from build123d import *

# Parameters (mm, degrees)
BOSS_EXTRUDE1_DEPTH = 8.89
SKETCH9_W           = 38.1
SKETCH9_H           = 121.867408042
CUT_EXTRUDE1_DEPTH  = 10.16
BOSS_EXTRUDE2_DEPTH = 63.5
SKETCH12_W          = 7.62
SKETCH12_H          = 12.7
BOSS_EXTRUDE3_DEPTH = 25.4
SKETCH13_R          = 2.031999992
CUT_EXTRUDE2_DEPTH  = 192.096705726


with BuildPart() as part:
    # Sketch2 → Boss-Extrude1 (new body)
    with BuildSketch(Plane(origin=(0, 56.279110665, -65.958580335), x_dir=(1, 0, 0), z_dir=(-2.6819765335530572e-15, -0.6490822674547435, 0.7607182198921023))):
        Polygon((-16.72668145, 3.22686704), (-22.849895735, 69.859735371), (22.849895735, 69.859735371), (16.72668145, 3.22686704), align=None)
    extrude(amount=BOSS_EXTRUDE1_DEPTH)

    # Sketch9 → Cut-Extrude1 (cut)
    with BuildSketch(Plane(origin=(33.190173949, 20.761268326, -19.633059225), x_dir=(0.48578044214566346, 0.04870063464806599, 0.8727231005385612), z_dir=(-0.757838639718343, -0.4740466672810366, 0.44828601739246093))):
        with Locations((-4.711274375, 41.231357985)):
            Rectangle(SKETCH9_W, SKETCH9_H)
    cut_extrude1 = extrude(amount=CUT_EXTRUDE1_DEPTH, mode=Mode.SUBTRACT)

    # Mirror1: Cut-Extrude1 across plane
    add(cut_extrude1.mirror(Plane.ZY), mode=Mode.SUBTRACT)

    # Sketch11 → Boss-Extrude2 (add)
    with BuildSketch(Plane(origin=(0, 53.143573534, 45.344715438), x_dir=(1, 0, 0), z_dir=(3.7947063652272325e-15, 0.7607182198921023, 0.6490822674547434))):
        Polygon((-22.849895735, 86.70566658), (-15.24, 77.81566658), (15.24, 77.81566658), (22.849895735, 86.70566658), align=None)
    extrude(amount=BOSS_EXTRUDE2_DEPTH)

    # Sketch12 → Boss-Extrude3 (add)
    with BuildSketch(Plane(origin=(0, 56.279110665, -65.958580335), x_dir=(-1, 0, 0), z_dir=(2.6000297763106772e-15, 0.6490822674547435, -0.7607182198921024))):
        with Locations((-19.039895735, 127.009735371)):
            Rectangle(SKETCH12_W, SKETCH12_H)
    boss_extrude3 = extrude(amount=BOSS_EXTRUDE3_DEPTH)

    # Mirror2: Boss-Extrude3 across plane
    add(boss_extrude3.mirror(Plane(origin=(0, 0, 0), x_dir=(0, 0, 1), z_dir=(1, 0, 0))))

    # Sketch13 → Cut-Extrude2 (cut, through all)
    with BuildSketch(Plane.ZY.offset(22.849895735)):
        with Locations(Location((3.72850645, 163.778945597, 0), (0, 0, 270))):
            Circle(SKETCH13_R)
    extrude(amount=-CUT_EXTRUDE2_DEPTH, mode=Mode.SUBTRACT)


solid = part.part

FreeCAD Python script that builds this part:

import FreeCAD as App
import Part
import Sketcher
Q = App.Units.Quantity

doc = App.newDocument("Part")
body = doc.addObject("PartDesign::Body", "Body")

sketch1 = body.newObject("Sketcher::SketchObject", "Sketch")
sketch1.Placement = App.Placement(App.Vector(0, 56.279111, -65.95858), App.Rotation(App.Vector(1, 0, 0), App.Vector(0, 0.76071822, 0.649082267), App.Vector(0, -0.649082267, 0.76071822), "ZXY"))
sketch1.addGeometry(Part.LineSegment(App.Vector(-22.849896, 69.859735, 0), App.Vector(-16.726681, 3.226867, 0)), False)
sketch1.addGeometry(Part.LineSegment(App.Vector(-16.726681, 3.226867, 0), App.Vector(16.726681, 3.226867, 0)), False)
sketch1.addGeometry(Part.LineSegment(App.Vector(16.726681, 3.226867, 0), App.Vector(22.849896, 69.859735, 0)), False)
sketch1.addGeometry(Part.LineSegment(App.Vector(22.849896, 69.859735, 0), App.Vector(-22.849896, 69.859735, 0)), False)
sketch1.addConstraint(Sketcher.Constraint("Coincident", 0, 2, 1, 1))
sketch1.addConstraint(Sketcher.Constraint("Coincident", 1, 2, 2, 1))
sketch1.addConstraint(Sketcher.Constraint("Coincident", 2, 2, 3, 1))
sketch1.addConstraint(Sketcher.Constraint("Coincident", 3, 2, 0, 1))
sketch1.addConstraint(Sketcher.Constraint("Horizontal", 1))
sketch1.addConstraint(Sketcher.Constraint("Horizontal", 3))
sketch1.addConstraint(Sketcher.Constraint("Equal", 0, 2))
sketch1.addConstraint(Sketcher.Constraint("DistanceX", 3, 2, 3, 1, 45.699791))
sketch1.addConstraint(Sketcher.Constraint("DistanceX", 1, 1, 1, 2, 33.453363))
sketch1.addConstraint(Sketcher.Constraint("DistanceX", 0, 2, -1, 1, 16.726681))
sketch1.addConstraint(Sketcher.Constraint("DistanceY", 1, 2, 2, 2, 66.632868))
sketch1.addConstraint(Sketcher.Constraint("DistanceY", -1, 1, 0, 2, 3.226867))
pad1 = body.newObject("PartDesign::Pad", "Pad")
pad1.Profile = sketch1
pad1.Length = Q("0.35 in")

sketch2 = body.newObject("Sketcher::SketchObject", "Sketch001")
sketch2.Placement = App.Placement(App.Vector(33.190174, 20.761268, -19.633059), App.Rotation(App.Vector(0.485780442, 0.048700635, 0.872723101), App.Vector(-0.435543291, 0.879151867, 0.193375376), App.Vector(-0.75783864, -0.474046667, 0.448286017), "ZXY"))
sketch2.addGeometry(Part.LineSegment(App.Vector(-23.761274, 102.165062, 0), App.Vector(-23.761274, -19.702346, 0)), False)
sketch2.addGeometry(Part.LineSegment(App.Vector(-23.761274, -19.702346, 0), App.Vector(14.338726, -19.702346, 0)), False)
sketch2.addGeometry(Part.LineSegment(App.Vector(14.338726, -19.702346, 0), App.Vector(14.338726, 102.165062, 0)), False)
sketch2.addGeometry(Part.LineSegment(App.Vector(14.338726, 102.165062, 0), App.Vector(-23.761274, 102.165062, 0)), False)
sketch2.addConstraint(Sketcher.Constraint("Coincident", 0, 2, 1, 1))
sketch2.addConstraint(Sketcher.Constraint("Coincident", 1, 2, 2, 1))
sketch2.addConstraint(Sketcher.Constraint("Coincident", 2, 2, 3, 1))
sketch2.addConstraint(Sketcher.Constraint("Coincident", 3, 2, 0, 1))
sketch2.addConstraint(Sketcher.Constraint("Vertical", 0))
sketch2.addConstraint(Sketcher.Constraint("Horizontal", 1))
sketch2.addConstraint(Sketcher.Constraint("Vertical", 2))
sketch2.addConstraint(Sketcher.Constraint("Horizontal", 3))
sketch2.addConstraint(Sketcher.Constraint("DistanceX", 1, 1, 1, 2, Q("1.5 in")))
sketch2.addConstraint(Sketcher.Constraint("DistanceY", 0, 2, 0, 1, 121.867408))
sketch2.addConstraint(Sketcher.Constraint("DistanceX", 0, 2, -1, 1, 23.761274))
sketch2.addConstraint(Sketcher.Constraint("DistanceY", 0, 2, -1, 1, 19.702346))
pocket1 = body.newObject("PartDesign::Pocket", "Pocket")
pocket1.Profile = sketch2
pocket1.Length = Q("0.4 in")
pocket1.Reversed = True
doc.recompute()

mirrored = body.newObject("PartDesign::Mirrored", "Mirrored")
mirrored.Originals = [pocket1]
mirrored.MirrorPlane = (doc.getObject("YZ_Plane"), [""])
body.Tip = mirrored

sketch3 = body.newObject("Sketcher::SketchObject", "Sketch002")
sketch3.Placement = App.Placement(App.Vector(0, 53.143574, 45.344715), App.Rotation(App.Vector(1, 0, 0), App.Vector(0, 0.649082267, -0.76071822), App.Vector(0, 0.76071822, 0.649082267), "ZXY"))
sketch3.addGeometry(Part.LineSegment(App.Vector(-22.849896, 86.705667, 0), App.Vector(-15.24, 77.815667, 0)), False)
sketch3.addGeometry(Part.LineSegment(App.Vector(-15.24, 77.815667, 0), App.Vector(15.24, 77.815667, 0)), False)
sketch3.addGeometry(Part.LineSegment(App.Vector(15.24, 77.815667, 0), App.Vector(22.849896, 86.705667, 0)), False)
sketch3.addGeometry(Part.LineSegment(App.Vector(22.849896, 86.705667, 0), App.Vector(-22.849896, 86.705667, 0)), False)
sketch3.addConstraint(Sketcher.Constraint("Coincident", 0, 2, 1, 1))
sketch3.addConstraint(Sketcher.Constraint("Coincident", 1, 2, 2, 1))
sketch3.addConstraint(Sketcher.Constraint("Coincident", 2, 2, 3, 1))
sketch3.addConstraint(Sketcher.Constraint("Coincident", 3, 2, 0, 1))
sketch3.addConstraint(Sketcher.Constraint("Horizontal", 1))
sketch3.addConstraint(Sketcher.Constraint("Horizontal", 3))
sketch3.addConstraint(Sketcher.Constraint("Equal", 0, 2))
sketch3.addConstraint(Sketcher.Constraint("DistanceX", 1, 1, 1, 2, Q("1.2 in")))
sketch3.addConstraint(Sketcher.Constraint("DistanceX", 0, 2, -1, 1, Q("0.6 in")))
sketch3.addConstraint(Sketcher.Constraint("DistanceY", 1, 2, 2, 2, Q("0.35 in")))
sketch3.addConstraint(Sketcher.Constraint("DistanceX", 3, 2, 3, 1, 45.699791))
sketch3.addConstraint(Sketcher.Constraint("DistanceY", -1, 1, 0, 2, 77.815667))
pad2 = body.newObject("PartDesign::Pad", "Pad001")
pad2.Profile = sketch3
pad2.Length = Q("2.5 in")

sketch4 = body.newObject("Sketcher::SketchObject", "Sketch003")
sketch4.Placement = App.Placement(App.Vector(0, 56.279111, -65.95858), App.Rotation(App.Vector(-1, 0, 0), App.Vector(0, 0.76071822, 0.649082267), App.Vector(0, 0.649082267, -0.76071822), "ZXY"))
sketch4.addGeometry(Part.LineSegment(App.Vector(-22.849896, 133.359735, 0), App.Vector(-22.849896, 120.659735, 0)), False)
sketch4.addGeometry(Part.LineSegment(App.Vector(-22.849896, 120.659735, 0), App.Vector(-15.229896, 120.659735, 0)), False)
sketch4.addGeometry(Part.LineSegment(App.Vector(-15.229896, 120.659735, 0), App.Vector(-15.229896, 133.359735, 0)), False)
sketch4.addGeometry(Part.LineSegment(App.Vector(-15.229896, 133.359735, 0), App.Vector(-22.849896, 133.359735, 0)), False)
sketch4.addConstraint(Sketcher.Constraint("Coincident", 0, 2, 1, 1))
sketch4.addConstraint(Sketcher.Constraint("Coincident", 1, 2, 2, 1))
sketch4.addConstraint(Sketcher.Constraint("Coincident", 2, 2, 3, 1))
sketch4.addConstraint(Sketcher.Constraint("Coincident", 3, 2, 0, 1))
sketch4.addConstraint(Sketcher.Constraint("Vertical", 0))
sketch4.addConstraint(Sketcher.Constraint("Horizontal", 1))
sketch4.addConstraint(Sketcher.Constraint("Vertical", 2))
sketch4.addConstraint(Sketcher.Constraint("Horizontal", 3))
sketch4.addConstraint(Sketcher.Constraint("DistanceX", 1, 1, 1, 2, Q("0.3 in")))
sketch4.addConstraint(Sketcher.Constraint("DistanceY", 0, 2, 0, 1, Q("0.5 in")))
sketch4.addConstraint(Sketcher.Constraint("DistanceX", 0, 2, -1, 1, 22.849896))
sketch4.addConstraint(Sketcher.Constraint("DistanceY", -1, 1, 0, 2, 120.659735))
pad3 = body.newObject("PartDesign::Pad", "Pad002")
pad3.Profile = sketch4
pad3.Length = Q("1 in")
doc.recompute()

mirrored2 = body.newObject("PartDesign::Mirrored", "Mirrored001")
mirrored2.Originals = [pad3]
mirrored2.MirrorPlane = (doc.getObject("YZ_Plane"), [""])
body.Tip = mirrored2

sketch5 = body.newObject("Sketcher::SketchObject", "Sketch004")
sketch5.AttachmentSupport = (doc.getObject("YZ_Plane"), [""])
sketch5.MapMode = "FlatFace"
sketch5.AttachmentOffset = App.Placement(App.Vector(0, 0, -22.849896), App.Rotation())
sketch5.addGeometry(Part.Circle(App.Vector(163.778946, 3.728506, 0), App.Vector(0, 0, 1), 2.032), False)
sketch5.addConstraint(Sketcher.Constraint("Diameter", 0, Q("0.16 in")))
sketch5.addConstraint(Sketcher.Constraint("DistanceX", -1, 1, 0, 3, 163.778946))
sketch5.addConstraint(Sketcher.Constraint("DistanceY", -1, 1, 0, 3, 3.728506))
pocket2 = body.newObject("PartDesign::Pocket", "Pocket001")
pocket2.Profile = sketch5
pocket2.Type = "ThroughAll"
pocket2.Reversed = True

doc.recompute()
